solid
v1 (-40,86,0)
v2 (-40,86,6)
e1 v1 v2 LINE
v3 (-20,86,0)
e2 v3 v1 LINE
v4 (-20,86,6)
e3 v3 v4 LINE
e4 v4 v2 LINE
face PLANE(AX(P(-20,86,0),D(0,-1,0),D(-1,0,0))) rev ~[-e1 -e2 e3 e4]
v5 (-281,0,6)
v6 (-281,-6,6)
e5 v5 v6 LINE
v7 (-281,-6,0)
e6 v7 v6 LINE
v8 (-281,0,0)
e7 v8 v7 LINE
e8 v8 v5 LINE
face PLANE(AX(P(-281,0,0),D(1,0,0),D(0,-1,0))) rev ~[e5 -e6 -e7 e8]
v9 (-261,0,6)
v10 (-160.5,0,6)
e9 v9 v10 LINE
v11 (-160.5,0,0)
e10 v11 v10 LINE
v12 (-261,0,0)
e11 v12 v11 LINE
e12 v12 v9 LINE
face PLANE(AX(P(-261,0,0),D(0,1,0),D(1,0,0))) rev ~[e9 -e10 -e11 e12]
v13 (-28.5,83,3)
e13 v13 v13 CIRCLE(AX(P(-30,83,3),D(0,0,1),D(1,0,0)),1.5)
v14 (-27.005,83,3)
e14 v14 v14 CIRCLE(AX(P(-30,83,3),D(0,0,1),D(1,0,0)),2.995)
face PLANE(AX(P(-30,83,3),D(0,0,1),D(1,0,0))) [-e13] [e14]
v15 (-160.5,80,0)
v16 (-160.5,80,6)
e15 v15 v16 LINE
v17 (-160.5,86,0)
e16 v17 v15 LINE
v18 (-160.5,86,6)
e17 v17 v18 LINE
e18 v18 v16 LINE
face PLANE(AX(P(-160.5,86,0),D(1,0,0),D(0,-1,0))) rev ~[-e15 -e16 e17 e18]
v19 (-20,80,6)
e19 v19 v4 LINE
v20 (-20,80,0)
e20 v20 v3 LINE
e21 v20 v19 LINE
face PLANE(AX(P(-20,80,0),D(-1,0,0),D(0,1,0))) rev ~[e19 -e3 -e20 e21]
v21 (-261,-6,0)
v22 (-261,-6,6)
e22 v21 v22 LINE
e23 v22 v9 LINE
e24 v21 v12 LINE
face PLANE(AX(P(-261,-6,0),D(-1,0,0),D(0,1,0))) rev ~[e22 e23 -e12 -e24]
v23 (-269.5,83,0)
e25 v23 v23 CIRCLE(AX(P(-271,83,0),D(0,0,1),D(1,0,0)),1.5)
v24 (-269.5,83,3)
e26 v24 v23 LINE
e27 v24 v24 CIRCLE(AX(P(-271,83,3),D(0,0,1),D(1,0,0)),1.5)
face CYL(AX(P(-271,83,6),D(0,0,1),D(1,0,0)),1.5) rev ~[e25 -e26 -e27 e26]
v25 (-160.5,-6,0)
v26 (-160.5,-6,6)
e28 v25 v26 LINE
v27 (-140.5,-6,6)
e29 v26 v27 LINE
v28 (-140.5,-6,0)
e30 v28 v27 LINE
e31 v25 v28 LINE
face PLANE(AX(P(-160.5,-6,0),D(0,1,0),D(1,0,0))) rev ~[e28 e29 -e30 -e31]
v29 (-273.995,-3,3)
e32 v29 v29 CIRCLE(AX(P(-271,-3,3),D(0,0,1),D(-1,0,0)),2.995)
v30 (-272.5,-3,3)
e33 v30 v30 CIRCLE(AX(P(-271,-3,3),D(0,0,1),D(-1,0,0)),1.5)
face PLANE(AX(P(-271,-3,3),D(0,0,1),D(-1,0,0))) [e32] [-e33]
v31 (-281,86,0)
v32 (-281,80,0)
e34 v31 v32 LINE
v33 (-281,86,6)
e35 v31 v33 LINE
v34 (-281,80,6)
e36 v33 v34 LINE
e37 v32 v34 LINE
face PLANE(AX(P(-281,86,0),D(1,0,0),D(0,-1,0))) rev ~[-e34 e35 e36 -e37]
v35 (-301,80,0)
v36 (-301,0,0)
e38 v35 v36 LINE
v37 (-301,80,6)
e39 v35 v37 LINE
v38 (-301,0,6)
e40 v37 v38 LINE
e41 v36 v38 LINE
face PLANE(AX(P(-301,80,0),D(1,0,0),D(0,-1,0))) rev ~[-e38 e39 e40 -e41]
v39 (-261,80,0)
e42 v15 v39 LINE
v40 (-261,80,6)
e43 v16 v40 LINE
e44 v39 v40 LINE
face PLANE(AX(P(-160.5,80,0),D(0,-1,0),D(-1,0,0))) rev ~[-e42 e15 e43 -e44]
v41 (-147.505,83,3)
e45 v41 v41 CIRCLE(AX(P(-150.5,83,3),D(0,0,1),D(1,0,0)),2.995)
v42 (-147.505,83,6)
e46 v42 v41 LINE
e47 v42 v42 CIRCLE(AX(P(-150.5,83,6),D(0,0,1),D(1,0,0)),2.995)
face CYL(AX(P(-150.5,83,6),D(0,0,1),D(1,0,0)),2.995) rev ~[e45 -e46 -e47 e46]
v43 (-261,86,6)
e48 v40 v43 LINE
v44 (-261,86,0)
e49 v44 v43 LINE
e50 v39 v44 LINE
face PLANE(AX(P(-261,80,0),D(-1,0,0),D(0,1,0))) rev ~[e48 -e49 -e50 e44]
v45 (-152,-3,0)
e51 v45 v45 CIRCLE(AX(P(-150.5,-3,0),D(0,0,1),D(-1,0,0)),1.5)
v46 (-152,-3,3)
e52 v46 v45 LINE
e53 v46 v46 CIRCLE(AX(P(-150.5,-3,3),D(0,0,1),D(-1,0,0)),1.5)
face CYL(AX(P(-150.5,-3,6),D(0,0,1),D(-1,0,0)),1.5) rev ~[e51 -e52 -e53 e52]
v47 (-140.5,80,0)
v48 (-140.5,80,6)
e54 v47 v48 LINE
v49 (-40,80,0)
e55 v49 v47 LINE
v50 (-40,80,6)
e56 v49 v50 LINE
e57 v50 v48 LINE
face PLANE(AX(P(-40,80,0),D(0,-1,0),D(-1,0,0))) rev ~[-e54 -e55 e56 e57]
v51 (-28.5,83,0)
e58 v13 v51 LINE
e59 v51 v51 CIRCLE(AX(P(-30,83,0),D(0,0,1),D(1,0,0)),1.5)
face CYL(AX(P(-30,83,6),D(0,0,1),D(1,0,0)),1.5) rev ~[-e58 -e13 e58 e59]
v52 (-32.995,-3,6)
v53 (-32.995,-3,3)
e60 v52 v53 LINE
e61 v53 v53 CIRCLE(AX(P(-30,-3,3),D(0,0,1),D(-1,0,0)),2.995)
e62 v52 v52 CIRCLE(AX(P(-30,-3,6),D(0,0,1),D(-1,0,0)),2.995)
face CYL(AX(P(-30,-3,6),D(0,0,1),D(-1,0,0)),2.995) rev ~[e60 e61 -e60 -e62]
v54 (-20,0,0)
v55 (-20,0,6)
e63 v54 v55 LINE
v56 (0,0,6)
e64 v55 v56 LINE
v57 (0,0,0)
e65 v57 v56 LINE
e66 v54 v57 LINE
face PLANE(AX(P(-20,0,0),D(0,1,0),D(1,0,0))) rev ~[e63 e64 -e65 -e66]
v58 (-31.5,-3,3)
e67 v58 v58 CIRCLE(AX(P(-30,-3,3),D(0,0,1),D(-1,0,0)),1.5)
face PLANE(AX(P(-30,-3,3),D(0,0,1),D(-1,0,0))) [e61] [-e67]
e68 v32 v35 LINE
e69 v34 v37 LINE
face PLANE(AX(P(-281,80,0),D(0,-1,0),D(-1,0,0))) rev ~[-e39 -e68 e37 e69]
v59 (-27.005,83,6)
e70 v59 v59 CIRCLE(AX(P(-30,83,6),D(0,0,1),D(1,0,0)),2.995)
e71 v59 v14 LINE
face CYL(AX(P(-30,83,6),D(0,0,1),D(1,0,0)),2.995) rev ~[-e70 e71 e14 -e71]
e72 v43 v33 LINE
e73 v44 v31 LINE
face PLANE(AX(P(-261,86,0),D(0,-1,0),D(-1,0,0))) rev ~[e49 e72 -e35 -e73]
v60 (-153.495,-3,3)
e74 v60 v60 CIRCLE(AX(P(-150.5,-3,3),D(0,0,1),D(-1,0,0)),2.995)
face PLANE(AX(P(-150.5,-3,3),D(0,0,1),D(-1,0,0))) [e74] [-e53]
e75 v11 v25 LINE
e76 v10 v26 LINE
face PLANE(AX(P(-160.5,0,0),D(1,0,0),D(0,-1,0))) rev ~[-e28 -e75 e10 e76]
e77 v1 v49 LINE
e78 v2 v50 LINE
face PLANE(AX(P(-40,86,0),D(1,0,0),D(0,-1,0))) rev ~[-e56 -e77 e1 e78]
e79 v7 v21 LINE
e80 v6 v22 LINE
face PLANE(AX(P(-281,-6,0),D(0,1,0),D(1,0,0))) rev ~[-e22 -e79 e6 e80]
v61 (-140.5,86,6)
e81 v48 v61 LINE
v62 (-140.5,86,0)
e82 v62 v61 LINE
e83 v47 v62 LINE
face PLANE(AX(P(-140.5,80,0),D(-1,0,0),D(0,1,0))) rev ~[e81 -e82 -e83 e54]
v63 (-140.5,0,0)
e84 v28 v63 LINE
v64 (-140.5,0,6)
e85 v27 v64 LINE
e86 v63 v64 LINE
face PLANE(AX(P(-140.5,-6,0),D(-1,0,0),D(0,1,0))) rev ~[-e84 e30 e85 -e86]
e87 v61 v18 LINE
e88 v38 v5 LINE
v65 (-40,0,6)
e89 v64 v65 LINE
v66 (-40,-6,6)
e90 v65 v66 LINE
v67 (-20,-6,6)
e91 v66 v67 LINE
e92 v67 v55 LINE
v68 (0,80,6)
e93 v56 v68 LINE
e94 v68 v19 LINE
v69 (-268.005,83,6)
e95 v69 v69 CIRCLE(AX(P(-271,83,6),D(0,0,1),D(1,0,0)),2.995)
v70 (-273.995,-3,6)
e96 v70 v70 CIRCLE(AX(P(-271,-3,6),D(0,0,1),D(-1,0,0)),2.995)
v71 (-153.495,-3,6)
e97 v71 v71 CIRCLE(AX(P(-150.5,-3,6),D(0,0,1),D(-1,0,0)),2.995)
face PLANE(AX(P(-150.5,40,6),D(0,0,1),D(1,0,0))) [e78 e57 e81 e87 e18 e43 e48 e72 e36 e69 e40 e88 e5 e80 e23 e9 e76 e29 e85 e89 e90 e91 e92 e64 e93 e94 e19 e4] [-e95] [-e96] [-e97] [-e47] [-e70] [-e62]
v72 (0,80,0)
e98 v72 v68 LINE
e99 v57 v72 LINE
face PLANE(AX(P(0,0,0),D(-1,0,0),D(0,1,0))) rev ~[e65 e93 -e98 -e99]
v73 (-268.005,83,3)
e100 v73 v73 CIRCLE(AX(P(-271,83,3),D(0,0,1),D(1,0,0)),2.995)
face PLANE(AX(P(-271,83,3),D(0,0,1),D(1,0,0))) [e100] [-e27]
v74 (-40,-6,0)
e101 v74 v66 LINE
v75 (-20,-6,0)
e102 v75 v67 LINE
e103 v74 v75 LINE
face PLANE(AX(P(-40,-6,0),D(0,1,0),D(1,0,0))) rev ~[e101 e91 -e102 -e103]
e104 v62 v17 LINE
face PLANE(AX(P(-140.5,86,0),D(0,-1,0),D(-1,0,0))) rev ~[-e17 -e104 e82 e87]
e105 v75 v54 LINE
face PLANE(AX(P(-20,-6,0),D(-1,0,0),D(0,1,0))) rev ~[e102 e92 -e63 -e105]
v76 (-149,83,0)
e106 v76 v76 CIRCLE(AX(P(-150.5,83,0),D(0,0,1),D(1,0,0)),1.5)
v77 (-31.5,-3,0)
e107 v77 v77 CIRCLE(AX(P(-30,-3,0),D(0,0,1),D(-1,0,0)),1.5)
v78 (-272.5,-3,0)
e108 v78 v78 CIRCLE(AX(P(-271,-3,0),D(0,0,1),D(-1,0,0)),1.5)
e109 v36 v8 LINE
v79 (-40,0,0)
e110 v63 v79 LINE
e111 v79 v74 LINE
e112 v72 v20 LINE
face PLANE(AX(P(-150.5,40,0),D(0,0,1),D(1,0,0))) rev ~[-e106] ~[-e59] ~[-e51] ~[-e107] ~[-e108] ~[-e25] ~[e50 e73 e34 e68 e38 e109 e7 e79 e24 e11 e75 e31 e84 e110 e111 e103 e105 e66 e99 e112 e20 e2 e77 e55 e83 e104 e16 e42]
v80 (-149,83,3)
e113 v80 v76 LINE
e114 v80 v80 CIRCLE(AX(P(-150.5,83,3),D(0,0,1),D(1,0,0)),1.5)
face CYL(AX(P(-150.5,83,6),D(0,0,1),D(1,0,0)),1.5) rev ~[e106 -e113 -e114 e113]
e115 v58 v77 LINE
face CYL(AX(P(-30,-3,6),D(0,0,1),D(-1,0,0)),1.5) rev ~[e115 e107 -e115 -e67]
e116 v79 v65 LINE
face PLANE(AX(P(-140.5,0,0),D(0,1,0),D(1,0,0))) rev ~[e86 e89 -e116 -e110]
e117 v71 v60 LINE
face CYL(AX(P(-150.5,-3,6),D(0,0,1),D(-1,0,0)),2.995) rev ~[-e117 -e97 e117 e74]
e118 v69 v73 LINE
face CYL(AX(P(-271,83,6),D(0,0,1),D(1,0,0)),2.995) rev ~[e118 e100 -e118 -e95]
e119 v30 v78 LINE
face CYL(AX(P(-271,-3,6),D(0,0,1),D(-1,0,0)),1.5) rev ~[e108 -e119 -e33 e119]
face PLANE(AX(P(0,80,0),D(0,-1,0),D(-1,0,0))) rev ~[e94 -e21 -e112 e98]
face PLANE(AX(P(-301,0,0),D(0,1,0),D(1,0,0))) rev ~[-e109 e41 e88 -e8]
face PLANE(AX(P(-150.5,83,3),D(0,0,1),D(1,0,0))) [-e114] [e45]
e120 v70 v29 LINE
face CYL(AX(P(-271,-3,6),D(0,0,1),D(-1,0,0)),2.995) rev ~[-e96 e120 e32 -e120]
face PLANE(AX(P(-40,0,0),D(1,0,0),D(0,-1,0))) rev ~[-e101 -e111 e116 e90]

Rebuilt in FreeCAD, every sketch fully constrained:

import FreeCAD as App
import Part
import Sketcher
from FreeCAD import Vector


def add_polygon(sketch, points):
    """Adds a closed chain of lines whose ends are joined by coincident constraints."""
    first, n = sketch.GeometryCount, len(points)
    for a, b in zip(points, points[1:] + points[:1]):
        sketch.addGeometry(Part.LineSegment(App.Vector(*a, 0), App.Vector(*b, 0)), False)
    for i in range(n):
        sketch.addConstraint(Sketcher.Constraint("Coincident", first + i, 2, first + (i + 1) % n, 1))

doc = App.newDocument("Part")
body = doc.addObject("PartDesign::Body", "Body")

# Sketch on XY plane
sketch1 = doc.addObject("Sketcher::SketchObject", "Sketch")
body.addObject(sketch1)
sketch1.AttachmentSupport = (doc.XY_Plane, [""])
sketch1.MapMode = "FlatFace"
add_polygon(sketch1, [(-40, 80), (-140, 80), (-140, 86), (-160, 86), (-160, 80), (-261, 80), (-261, 86), (-281, 86), (-281, 80), (-301, 80), (-301, 0), (-281, 0), (-281, -6), (-261, -6), (-261, 0), (-160, 0), (-160, -6), (-140, -6), (-140, 0), (-40, 0), (-40, -6), (-20, -6), (-20, 0), (0, 0), (0, 80), (-20, 80), (-20, 86), (-40, 86)])  # lines 0-27
sketch1.addConstraint([
    Sketcher.Constraint("Horizontal", 0),
    Sketcher.Constraint("Vertical", 1),
    Sketcher.Constraint("Horizontal", 2),
    Sketcher.Constraint("Vertical", 3),
    Sketcher.Constraint("Horizontal", 4),
    Sketcher.Constraint("Vertical", 5),
    Sketcher.Constraint("Horizontal", 6),
    Sketcher.Constraint("Vertical", 7),
    Sketcher.Constraint("Horizontal", 8),
    Sketcher.Constraint("Vertical", 9),
    Sketcher.Constraint("Horizontal", 10),
    Sketcher.Constraint("Vertical", 11),
    Sketcher.Constraint("Horizontal", 12),
    Sketcher.Constraint("Vertical", 13),
    Sketcher.Constraint("Horizontal", 14),
    Sketcher.Constraint("Vertical", 15),
    Sketcher.Constraint("Horizontal", 16),
    Sketcher.Constraint("Vertical", 17),
    Sketcher.Constraint("Horizontal", 18),
    Sketcher.Constraint("Vertical", 19),
    Sketcher.Constraint("Horizontal", 20),
    Sketcher.Constraint("Vertical", 21),
    Sketcher.Constraint("Horizontal", 22),
    Sketcher.Constraint("Vertical", 23),
    Sketcher.Constraint("Horizontal", 24),
    Sketcher.Constraint("Vertical", 25),
    Sketcher.Constraint("Horizontal", 26),
    Sketcher.Constraint("Vertical", 27),
    Sketcher.Constraint("Coincident", 22, 2, -1, 1),
    Sketcher.Constraint("PointOnObject", 9, 2, -1),
    Sketcher.Constraint("PointOnObject", 13, 2, -1),
    Sketcher.Constraint("PointOnObject", 17, 2, -1),
    Sketcher.Constraint("Horizontal", 0, 2, 3, 2),
    Sketcher.Constraint("Horizontal", 2, 2, 5, 2),
    Sketcher.Constraint("Horizontal", 4, 2, 7, 2),
    Sketcher.Constraint("Horizontal", 12, 2, 15, 2),
    Sketcher.Constraint("Horizontal", 16, 2, 19, 2),
    Sketcher.Constraint("Horizontal", 8, 2, 23, 2),
    Sketcher.Constraint("Horizontal", 6, 2, 25, 2),
    Sketcher.Constraint("Vertical", 7, 2, 10, 2),
    Sketcher.Constraint("Vertical", 5, 2, 12, 2),
    Sketcher.Constraint("Vertical", 3, 2, 14, 2),
    Sketcher.Constraint("Vertical", 1, 2, 16, 2),
    Sketcher.Constraint("Vertical", 21, 2, 24, 2),
    Sketcher.Constraint("Vertical", 19, 2, 26, 2),
    Sketcher.Constraint("Equal", 0, 4),
    Sketcher.Constraint("Equal", 2, 6),
    Sketcher.Constraint("Equal", 6, 8),
    Sketcher.Constraint("Equal", 16, 20),
    Sketcher.Constraint("Equal", 20, 22),
    Sketcher.Constraint("Equal", 7, 11),
    Sketcher.Constraint("DistanceX", 2, 2, 2, 1, 20.0),
    Sketcher.Constraint("DistanceY", 1, 1, 1, 2, 6.0),
    Sketcher.Constraint("DistanceY", 9, 2, 9, 1, 80.0),
    Sketcher.Constraint("DistanceX", 0, 2, 0, 1, 100.5),
])
pad1 = doc.addObject("PartDesign::Pad", "Pad")
body.addObject(pad1)
pad1.Profile = sketch1
pad1.Length = 6

# Sketch on XY plane
sketch2 = doc.addObject("Sketcher::SketchObject", "Sketch001")
body.addObject(sketch2)
sketch2.AttachmentSupport = (doc.XY_Plane, [""])
sketch2.MapMode = "FlatFace"
sketch2.AttachmentOffset = App.Placement(Vector(0, 0, 6), App.Rotation())
sketch2.addGeometry([
    Part.Circle(Vector(-271, 83, 0), Vector(0, 0, 1), 1.5),  # 0
    Part.Circle(Vector(-150.5, 83, 0), Vector(0, 0, 1), 1.5),  # 1
    Part.Circle(Vector(-30, 83, 0), Vector(0, 0, 1), 1.5),  # 2
    Part.Circle(Vector(-271, -3, 0), Vector(0, 0, 1), 1.5),  # 3
    Part.Circle(Vector(-150.5, -3, 0), Vector(0, 0, 1), 1.5),  # 4
    Part.Circle(Vector(-30, -3, 0), Vector(0, 0, 1), 1.5),  # 5
], False)
sketch2.addConstraint([
    Sketcher.Constraint("Equal", 0, 1),
    Sketcher.Constraint("Equal", 1, 2),
    Sketcher.Constraint("Equal", 2, 3),
    Sketcher.Constraint("Equal", 3, 4),
    Sketcher.Constraint("Equal", 4, 5),
    Sketcher.Constraint("Horizontal", 0, 3, 1, 3),
    Sketcher.Constraint("Horizontal", 1, 3, 2, 3),
    Sketcher.Constraint("Horizontal", 3, 3, 4, 3),
    Sketcher.Constraint("Horizontal", 4, 3, 5, 3),
    Sketcher.Constraint("Vertical", 0, 3, 3, 3),
    Sketcher.Constraint("Vertical", 1, 3, 4, 3),
    Sketcher.Constraint("Vertical", 2, 3, 5, 3),
    Sketcher.Constraint("Diameter", 0, 3.0),
    Sketcher.Constraint("DistanceX", 0, 3, -1, 1, 271.0),
    Sketcher.Constraint("DistanceY", -1, 1, 0, 3, 83.0),
    Sketcher.Constraint("DistanceX", 2, 3, -1, 1, 30.0),
    Sketcher.Constraint("DistanceY", 3, 3, -1, 1, 3.0),
    Sketcher.Constraint("DistanceX", 1, 3, -1, 1, 150.5),
])
pocket1 = doc.addObject("PartDesign::Pocket", "Pocket")
body.addObject(pocket1)
pocket1.Profile = sketch2
pocket1.Type = "ThroughAll"

# Sketch on XY plane
sketch3 = doc.addObject("Sketcher::SketchObject", "Sketch002")
body.addObject(sketch3)
sketch3.AttachmentSupport = (doc.XY_Plane, [""])
sketch3.MapMode = "FlatFace"
sketch3.AttachmentOffset = App.Placement(Vector(0, 0, 6), App.Rotation())
sketch3.addGeometry([
    Part.Circle(Vector(-271, 83, 0), Vector(0, 0, 1), 3),  # 0
    Part.Circle(Vector(-150.5, 83, 0), Vector(0, 0, 1), 3),  # 1
    Part.Circle(Vector(-30, 83, 0), Vector(0, 0, 1), 3),  # 2
    Part.Circle(Vector(-30, -3, 0), Vector(0, 0, 1), 3),  # 3
    Part.Circle(Vector(-150.5, -3, 0), Vector(0, 0, 1), 3),  # 4
    Part.Circle(Vector(-271, -3, 0), Vector(0, 0, 1), 3),  # 5
], False)
sketch3.addConstraint([
    Sketcher.Constraint("Equal", 0, 1),
    Sketcher.Constraint("Equal", 1, 2),
    Sketcher.Constraint("Equal", 2, 3),
    Sketcher.Constraint("Equal", 3, 4),
    Sketcher.Constraint("Equal", 4, 5),
    Sketcher.Constraint("Horizontal", 0, 3, 1, 3),
    Sketcher.Constraint("Horizontal", 1, 3, 2, 3),
    Sketcher.Constraint("Horizontal", 3, 3, 4, 3),
    Sketcher.Constraint("Horizontal", 4, 3, 5, 3),
    Sketcher.Constraint("Vertical", 2, 3, 3, 3),
    Sketcher.Constraint("Vertical", 1, 3, 4, 3),
    Sketcher.Constraint("Vertical", 0, 3, 5, 3),
    Sketcher.Constraint("Diameter", 0, 5.99),
    Sketcher.Constraint("DistanceX", 0, 3, -1, 1, 271.0),
    Sketcher.Constraint("DistanceY", -1, 1, 0, 3, 83.0),
    Sketcher.Constraint("DistanceX", 2, 3, -1, 1, 30.0),
    Sketcher.Constraint("DistanceY", 3, 3, -1, 1, 3.0),
    Sketcher.Constraint("DistanceX", 1, 3, -1, 1, 150.5),
])
pocket2 = doc.addObject("PartDesign::Pocket", "Pocket001")
body.addObject(pocket2)
pocket2.Profile = sketch3
pocket2.Length = 3

doc.recompute()
